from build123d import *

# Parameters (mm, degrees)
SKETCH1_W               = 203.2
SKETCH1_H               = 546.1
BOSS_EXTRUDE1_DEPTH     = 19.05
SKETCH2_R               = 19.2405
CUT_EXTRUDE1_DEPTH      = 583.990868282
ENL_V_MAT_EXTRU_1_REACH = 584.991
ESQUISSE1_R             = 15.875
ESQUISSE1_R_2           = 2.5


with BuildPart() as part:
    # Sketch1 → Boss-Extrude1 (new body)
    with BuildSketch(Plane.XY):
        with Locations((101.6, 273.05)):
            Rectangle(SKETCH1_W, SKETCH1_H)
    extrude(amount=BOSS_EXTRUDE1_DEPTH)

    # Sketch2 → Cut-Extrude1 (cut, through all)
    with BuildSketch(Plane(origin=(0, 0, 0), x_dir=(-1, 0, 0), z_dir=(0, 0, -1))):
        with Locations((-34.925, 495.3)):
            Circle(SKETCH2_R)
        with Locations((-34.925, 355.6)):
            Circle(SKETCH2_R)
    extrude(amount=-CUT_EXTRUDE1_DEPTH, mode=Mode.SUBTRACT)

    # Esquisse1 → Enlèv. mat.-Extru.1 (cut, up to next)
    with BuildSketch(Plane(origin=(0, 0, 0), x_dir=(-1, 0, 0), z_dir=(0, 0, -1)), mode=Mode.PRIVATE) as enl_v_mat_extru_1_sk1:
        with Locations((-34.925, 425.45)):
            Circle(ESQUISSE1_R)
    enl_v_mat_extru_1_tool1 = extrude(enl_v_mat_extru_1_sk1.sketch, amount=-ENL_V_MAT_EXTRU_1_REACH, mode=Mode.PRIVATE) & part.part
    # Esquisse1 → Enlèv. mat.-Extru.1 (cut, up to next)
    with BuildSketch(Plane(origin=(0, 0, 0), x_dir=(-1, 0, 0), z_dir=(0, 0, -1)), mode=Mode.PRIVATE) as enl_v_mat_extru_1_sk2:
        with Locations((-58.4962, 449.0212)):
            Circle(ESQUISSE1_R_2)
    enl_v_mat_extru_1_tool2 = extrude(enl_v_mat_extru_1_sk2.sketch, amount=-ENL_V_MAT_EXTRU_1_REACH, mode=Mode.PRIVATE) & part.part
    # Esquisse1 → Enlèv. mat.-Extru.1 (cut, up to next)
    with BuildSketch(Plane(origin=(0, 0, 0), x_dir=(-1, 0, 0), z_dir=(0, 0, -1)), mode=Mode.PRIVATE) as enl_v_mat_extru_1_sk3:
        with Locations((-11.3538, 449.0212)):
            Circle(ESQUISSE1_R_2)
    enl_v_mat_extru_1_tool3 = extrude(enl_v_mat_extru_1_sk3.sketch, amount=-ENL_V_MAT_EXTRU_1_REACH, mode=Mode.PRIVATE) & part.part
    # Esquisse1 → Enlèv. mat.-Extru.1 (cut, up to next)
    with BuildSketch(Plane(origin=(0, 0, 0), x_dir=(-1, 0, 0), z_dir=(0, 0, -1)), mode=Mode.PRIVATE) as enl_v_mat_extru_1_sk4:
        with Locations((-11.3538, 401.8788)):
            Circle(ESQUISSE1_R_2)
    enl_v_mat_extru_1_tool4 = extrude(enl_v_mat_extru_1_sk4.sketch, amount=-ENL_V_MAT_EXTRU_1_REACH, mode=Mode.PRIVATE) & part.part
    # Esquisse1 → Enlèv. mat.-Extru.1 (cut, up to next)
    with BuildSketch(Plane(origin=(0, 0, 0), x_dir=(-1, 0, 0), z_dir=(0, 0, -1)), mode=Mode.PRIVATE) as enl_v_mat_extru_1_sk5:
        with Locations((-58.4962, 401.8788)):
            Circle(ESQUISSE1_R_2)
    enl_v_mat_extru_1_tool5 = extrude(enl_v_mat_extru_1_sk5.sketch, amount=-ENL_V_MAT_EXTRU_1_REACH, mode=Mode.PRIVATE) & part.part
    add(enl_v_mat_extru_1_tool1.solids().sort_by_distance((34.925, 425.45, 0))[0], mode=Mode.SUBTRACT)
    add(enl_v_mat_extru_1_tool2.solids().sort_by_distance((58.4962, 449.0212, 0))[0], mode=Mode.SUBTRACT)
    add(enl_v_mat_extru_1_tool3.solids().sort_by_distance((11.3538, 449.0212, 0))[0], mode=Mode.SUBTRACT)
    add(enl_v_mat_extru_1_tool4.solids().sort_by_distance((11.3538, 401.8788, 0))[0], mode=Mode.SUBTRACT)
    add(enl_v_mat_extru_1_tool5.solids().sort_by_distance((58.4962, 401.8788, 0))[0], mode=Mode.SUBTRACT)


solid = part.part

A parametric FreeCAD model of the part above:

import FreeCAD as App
import Part
import Sketcher

V = App.Vector
Q = App.Units.Quantity

doc = App.newDocument("Part")
body = doc.addObject("PartDesign::Body", "Body")

# Sketch on XY plane
sketch1 = body.newObject("Sketcher::SketchObject", "Sketch")
sketch1.AttachmentSupport = (doc.getObject("XY_Plane"), [""])
sketch1.MapMode = "FlatFace"
sketch1.addGeometry([
    Part.LineSegment(V(0, 546.1, 0), V(0, 0, 0)),
    Part.LineSegment(V(0, 0, 0), V(203.2, 0, 0)),
    Part.LineSegment(V(203.2, 0, 0), V(203.2, 546.1, 0)),
    Part.LineSegment(V(203.2, 546.1, 0), V(0, 546.1, 0)),
], False)
sketch1.addConstraint([
    Sketcher.Constraint("Coincident", 0, 2, 1, 1),
    Sketcher.Constraint("Coincident", 1, 2, 2, 1),
    Sketcher.Constraint("Coincident", 2, 2, 3, 1),
    Sketcher.Constraint("Coincident", 3, 2, 0, 1),
    Sketcher.Constraint("Vertical", 0),
    Sketcher.Constraint("Horizontal", 1),
    Sketcher.Constraint("Vertical", 2),
    Sketcher.Constraint("Horizontal", 3),
    Sketcher.Constraint("Coincident", 0, 2, -1, 1),
    Sketcher.Constraint("DistanceX", 1, 1, 1, 2, Q("8 in")),
    Sketcher.Constraint("DistanceY", 0, 2, 0, 1, Q("21.5 in")),
])
pad1 = body.newObject("PartDesign::Pad", "Pad")
pad1.Profile = sketch1
pad1.Length = Q("0.75 in")

# Sketch on XY plane
sketch2 = body.newObject("Sketcher::SketchObject", "Sketch001")
sketch2.AttachmentSupport = (doc.getObject("XY_Plane"), [""])
sketch2.MapMode = "FlatFace"
sketch2.addGeometry([
    Part.Circle(V(34.925, 495.3, 0), V(0, 0, 1), 19.2405),
    Part.Circle(V(34.925, 355.6, 0), V(0, 0, 1), 19.2405),
], False)
sketch2.addConstraint([
    Sketcher.Constraint("Equal", 0, 1),
    Sketcher.Constraint("Vertical", 0, 3, 1, 3),
    Sketcher.Constraint("Diameter", 0, Q("1.515 in")),
    Sketcher.Constraint("DistanceY", -1, 1, 1, 3, Q("14 in")),
    Sketcher.Constraint("DistanceY", -1, 1, 0, 3, Q("19.5 in")),
    Sketcher.Constraint("DistanceX", -1, 1, 0, 3, Q("1.375 in")),
])
pocket1 = body.newObject("PartDesign::Pocket", "Pocket")
pocket1.Profile = sketch2
pocket1.Type = "ThroughAll"
pocket1.Reversed = True

# Sketch on XY plane
sketch3 = body.newObject("Sketcher::SketchObject", "Sketch002")
sketch3.AttachmentSupport = (doc.getObject("XY_Plane"), [""])
sketch3.MapMode = "FlatFace"
sketch3.addGeometry(Part.Circle(V(34.925, 425.45, 0), V(0, 0, 1), 15.875), False)
sketch3.addConstraint([
    Sketcher.Constraint("Diameter", 0, Q("1.25 in")),
    Sketcher.Constraint("DistanceY", -1, 1, 0, 3, Q("16.75 in")),
    Sketcher.Constraint("DistanceX", -1, 1, 0, 3, Q("1.375 in")),
])
pocket2 = body.newObject("PartDesign::Pocket", "Pocket001")
pocket2.Profile = sketch3
pocket2.Type = "UpToFirst"
pocket2.Reversed = True

# Sketch on XY plane
sketch4 = body.newObject("Sketcher::SketchObject", "Sketch003")
sketch4.AttachmentSupport = (doc.getObject("XY_Plane"), [""])
sketch4.MapMode = "FlatFace"
sketch4.addGeometry(Part.Circle(V(58.4962, 449.0212, 0), V(0, 0, 1), 2.5), False)
sketch4.addConstraint([
    Sketcher.Constraint("Diameter", 0, 5.0),
    Sketcher.Constraint("DistanceX", -1, 1, 0, 3, Q("2.303 in")),
    Sketcher.Constraint("DistanceY", -1, 1, 0, 3, Q("17.678 in")),
])
pocket3 = body.newObject("PartDesign::Pocket", "Pocket002")
pocket3.Profile = sketch4
pocket3.Type = "UpToFirst"
pocket3.Reversed = True

# Sketch on XY plane
sketch5 = body.newObject("Sketcher::SketchObject", "Sketch004")
sketch5.AttachmentSupport = (doc.getObject("XY_Plane"), [""])
sketch5.MapMode = "FlatFace"
sketch5.addGeometry(Part.Circle(V(11.3538, 449.0212, 0), V(0, 0, 1), 2.5), False)
sketch5.addConstraint([
    Sketcher.Constraint("Diameter", 0, 5.0),
    Sketcher.Constraint("DistanceX", -1, 1, 0, 3, Q("0.447 in")),
    Sketcher.Constraint("DistanceY", -1, 1, 0, 3, Q("17.678 in")),
])
pocket4 = body.newObject("PartDesign::Pocket", "Pocket003")
pocket4.Profile = sketch5
pocket4.Type = "UpToFirst"
pocket4.Reversed = True

# Sketch on XY plane
sketch6 = body.newObject("Sketcher::SketchObject", "Sketch005")
sketch6.AttachmentSupport = (doc.getObject("XY_Plane"), [""])
sketch6.MapMode = "FlatFace"
sketch6.addGeometry(Part.Circle(V(11.3538, 401.8788, 0), V(0, 0, 1), 2.5), False)
sketch6.addConstraint([
    Sketcher.Constraint("Diameter", 0, 5.0),
    Sketcher.Constraint("DistanceX", -1, 1, 0, 3, Q("0.447 in")),
    Sketcher.Constraint("DistanceY", -1, 1, 0, 3, Q("15.822 in")),
])
pocket5 = body.newObject("PartDesign::Pocket", "Pocket004")
pocket5.Profile = sketch6
pocket5.Type = "UpToFirst"
pocket5.Reversed = True

# Sketch on XY plane
sketch7 = body.newObject("Sketcher::SketchObject", "Sketch006")
sketch7.AttachmentSupport = (doc.getObject("XY_Plane"), [""])
sketch7.MapMode = "FlatFace"
sketch7.addGeometry(Part.Circle(V(58.4962, 401.8788, 0), V(0, 0, 1), 2.5), False)
sketch7.addConstraint([
    Sketcher.Constraint("Diameter", 0, 5.0),
    Sketcher.Constraint("DistanceX", -1, 1, 0, 3, Q("2.303 in")),
    Sketcher.Constraint("DistanceY", -1, 1, 0, 3, Q("15.822 in")),
])
pocket6 = body.newObject("PartDesign::Pocket", "Pocket005")
pocket6.Profile = sketch7
pocket6.Type = "UpToFirst"
pocket6.Reversed = True

doc.recompute()
